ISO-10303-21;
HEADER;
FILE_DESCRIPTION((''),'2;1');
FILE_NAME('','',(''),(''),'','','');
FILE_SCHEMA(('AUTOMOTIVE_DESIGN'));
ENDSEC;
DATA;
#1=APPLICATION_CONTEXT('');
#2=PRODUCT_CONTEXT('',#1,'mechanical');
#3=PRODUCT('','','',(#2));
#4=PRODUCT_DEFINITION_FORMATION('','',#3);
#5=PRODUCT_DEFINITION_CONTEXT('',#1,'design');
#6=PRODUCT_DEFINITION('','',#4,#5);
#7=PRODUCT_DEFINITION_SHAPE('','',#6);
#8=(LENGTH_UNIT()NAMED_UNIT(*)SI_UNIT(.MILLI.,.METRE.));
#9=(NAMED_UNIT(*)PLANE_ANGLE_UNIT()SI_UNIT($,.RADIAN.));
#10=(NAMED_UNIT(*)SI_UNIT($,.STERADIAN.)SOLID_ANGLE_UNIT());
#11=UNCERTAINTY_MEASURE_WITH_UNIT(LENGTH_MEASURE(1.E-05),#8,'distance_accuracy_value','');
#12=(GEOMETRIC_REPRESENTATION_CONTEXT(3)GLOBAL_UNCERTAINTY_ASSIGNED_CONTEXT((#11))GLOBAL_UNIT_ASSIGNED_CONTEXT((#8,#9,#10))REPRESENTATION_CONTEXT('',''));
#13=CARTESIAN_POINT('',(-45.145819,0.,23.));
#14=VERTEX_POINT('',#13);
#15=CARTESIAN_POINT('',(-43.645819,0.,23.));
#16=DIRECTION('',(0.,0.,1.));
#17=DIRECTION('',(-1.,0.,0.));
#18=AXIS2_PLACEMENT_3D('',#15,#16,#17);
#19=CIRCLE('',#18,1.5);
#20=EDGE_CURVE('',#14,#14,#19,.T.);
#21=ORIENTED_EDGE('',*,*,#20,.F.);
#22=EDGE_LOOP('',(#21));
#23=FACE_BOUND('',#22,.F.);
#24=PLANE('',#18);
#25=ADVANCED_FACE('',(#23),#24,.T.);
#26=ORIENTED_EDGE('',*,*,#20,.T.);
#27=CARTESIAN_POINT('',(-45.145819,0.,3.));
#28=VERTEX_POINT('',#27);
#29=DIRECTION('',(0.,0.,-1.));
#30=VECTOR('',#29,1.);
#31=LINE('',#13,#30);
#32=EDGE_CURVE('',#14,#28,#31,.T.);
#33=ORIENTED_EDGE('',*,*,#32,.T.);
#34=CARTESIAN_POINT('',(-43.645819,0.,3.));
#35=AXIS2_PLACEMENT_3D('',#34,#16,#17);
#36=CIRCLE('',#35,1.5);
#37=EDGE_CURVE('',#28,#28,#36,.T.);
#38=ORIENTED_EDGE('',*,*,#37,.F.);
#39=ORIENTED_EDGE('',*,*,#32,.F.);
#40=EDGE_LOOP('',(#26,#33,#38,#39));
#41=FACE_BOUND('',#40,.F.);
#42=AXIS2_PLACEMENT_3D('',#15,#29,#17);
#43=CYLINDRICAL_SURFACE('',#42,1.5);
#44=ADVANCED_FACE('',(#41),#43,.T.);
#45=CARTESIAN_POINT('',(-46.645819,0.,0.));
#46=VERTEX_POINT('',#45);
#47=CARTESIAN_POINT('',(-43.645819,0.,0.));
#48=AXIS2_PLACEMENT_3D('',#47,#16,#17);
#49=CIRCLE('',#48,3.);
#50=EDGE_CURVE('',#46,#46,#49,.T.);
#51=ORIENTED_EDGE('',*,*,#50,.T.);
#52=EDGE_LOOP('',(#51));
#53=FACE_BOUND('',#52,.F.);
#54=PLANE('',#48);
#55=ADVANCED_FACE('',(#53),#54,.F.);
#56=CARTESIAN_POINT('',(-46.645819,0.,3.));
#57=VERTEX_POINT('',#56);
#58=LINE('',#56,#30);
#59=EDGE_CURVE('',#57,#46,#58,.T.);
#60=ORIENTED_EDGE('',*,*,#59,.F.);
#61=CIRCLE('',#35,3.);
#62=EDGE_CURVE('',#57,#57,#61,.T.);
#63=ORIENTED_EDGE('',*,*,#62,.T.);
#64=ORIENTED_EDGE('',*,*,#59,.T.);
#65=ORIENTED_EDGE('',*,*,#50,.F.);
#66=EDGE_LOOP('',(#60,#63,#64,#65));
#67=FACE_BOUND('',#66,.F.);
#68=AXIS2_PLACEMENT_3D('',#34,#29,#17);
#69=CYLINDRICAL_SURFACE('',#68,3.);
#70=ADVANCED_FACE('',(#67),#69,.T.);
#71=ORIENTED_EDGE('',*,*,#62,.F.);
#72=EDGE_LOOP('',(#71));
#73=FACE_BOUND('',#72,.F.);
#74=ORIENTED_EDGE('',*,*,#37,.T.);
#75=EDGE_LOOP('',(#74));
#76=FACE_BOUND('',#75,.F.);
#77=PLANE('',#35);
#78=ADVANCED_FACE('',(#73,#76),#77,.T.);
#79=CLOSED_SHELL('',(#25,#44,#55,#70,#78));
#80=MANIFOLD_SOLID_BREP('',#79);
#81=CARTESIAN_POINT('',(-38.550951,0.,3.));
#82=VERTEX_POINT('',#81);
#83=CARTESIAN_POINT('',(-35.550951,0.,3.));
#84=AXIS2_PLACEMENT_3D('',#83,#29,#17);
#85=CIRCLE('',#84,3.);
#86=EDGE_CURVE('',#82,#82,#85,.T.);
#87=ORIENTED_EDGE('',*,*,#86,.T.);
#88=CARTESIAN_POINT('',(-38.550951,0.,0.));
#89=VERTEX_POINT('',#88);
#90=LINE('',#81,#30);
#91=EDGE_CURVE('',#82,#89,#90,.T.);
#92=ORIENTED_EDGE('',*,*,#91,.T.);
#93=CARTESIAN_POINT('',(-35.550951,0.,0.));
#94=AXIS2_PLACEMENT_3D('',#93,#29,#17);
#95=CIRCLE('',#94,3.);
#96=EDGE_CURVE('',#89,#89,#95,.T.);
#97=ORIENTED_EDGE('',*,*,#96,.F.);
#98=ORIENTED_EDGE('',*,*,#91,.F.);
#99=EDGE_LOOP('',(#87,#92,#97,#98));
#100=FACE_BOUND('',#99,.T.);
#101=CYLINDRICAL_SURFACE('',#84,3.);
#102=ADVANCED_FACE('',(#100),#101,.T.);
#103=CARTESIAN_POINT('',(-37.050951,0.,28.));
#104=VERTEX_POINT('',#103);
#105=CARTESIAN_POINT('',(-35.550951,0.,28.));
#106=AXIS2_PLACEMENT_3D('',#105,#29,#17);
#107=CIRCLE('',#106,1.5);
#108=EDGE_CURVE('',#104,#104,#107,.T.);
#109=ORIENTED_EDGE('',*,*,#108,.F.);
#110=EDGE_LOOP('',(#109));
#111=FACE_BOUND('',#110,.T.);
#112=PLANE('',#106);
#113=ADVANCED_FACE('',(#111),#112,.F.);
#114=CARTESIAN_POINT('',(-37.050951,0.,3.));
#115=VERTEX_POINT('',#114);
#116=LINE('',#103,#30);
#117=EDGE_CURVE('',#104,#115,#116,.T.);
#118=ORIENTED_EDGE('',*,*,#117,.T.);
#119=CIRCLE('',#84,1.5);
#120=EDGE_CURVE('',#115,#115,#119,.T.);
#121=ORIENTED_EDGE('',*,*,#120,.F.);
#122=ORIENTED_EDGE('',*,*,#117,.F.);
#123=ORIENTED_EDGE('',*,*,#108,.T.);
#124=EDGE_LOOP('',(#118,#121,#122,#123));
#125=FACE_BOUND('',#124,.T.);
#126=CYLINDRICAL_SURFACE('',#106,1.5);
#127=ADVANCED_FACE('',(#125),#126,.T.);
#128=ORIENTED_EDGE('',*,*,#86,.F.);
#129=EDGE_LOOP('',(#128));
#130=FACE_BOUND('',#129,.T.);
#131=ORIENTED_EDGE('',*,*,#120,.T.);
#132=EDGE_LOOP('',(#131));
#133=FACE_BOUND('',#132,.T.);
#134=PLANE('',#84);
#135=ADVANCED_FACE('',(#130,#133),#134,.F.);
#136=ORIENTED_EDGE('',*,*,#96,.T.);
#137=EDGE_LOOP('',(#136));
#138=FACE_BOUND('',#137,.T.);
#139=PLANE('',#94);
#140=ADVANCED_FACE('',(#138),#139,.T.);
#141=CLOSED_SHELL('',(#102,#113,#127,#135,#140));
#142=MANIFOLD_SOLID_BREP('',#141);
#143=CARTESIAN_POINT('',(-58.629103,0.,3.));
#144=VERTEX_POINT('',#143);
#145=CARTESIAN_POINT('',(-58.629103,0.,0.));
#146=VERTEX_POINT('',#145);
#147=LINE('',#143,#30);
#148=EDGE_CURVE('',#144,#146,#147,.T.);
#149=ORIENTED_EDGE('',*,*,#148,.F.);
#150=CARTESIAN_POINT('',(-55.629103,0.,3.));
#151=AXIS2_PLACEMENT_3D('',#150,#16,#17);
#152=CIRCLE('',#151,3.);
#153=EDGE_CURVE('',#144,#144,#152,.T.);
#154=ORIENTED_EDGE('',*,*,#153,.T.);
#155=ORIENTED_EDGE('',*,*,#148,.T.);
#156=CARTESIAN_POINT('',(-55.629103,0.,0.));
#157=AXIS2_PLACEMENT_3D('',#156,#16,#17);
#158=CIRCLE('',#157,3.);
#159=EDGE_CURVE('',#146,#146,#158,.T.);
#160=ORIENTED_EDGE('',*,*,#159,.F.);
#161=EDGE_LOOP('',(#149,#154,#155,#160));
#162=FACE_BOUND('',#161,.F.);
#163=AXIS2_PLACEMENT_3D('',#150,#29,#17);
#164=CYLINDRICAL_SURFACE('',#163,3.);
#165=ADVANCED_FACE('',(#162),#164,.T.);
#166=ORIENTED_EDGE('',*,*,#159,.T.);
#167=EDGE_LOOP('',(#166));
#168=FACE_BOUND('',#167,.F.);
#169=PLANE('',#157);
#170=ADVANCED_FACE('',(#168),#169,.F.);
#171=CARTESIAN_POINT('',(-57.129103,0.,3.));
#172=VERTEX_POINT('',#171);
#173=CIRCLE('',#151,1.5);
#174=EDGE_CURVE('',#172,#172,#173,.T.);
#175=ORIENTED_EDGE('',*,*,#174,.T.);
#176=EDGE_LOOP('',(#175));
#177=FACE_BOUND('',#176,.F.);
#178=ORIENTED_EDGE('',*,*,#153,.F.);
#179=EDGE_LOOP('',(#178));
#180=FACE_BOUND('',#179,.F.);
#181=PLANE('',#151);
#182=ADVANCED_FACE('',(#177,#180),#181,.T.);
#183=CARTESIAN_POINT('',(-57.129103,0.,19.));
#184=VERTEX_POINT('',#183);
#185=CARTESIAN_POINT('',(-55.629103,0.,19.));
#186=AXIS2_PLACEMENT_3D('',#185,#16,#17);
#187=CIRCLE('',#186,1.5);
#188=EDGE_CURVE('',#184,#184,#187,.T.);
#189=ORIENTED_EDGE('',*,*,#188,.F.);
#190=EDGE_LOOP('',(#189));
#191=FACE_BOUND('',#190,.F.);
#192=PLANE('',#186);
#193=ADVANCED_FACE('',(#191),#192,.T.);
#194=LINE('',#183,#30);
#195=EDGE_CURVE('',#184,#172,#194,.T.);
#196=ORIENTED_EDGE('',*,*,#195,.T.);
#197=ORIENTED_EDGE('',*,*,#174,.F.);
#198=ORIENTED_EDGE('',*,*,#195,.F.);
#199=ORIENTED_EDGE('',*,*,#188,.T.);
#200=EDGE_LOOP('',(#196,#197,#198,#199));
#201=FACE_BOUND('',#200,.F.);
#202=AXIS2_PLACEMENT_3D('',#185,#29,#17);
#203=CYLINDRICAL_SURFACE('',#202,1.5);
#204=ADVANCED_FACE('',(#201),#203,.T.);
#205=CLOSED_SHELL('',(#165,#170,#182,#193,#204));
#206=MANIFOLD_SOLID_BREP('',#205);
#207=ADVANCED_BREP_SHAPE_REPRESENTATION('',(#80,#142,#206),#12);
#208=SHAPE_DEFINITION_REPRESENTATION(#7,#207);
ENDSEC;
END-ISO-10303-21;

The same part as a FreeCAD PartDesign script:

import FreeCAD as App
import Part
import Sketcher
from FreeCAD import Vector

doc = App.newDocument("Part")
params = doc.addObject("Spreadsheet::Sheet", "Params")
for row, (alias, value) in enumerate([
    ("sketch1_width", "3 mm"),
    ("sketch1_height", "23 mm"),
    ("revolution_angle", "360 deg"),
    ("sketch2_width", "3 mm"),
    ("sketch2_height", "28 mm"),
    ("revolution2_angle", "360 deg"),
    ("sketch3_width", "3 mm"),
    ("sketch3_height", "19 mm"),
    ("revolution3_angle", "360 deg"),
], start=1):
    params.set(f"A{row}", alias)
    params.set(f"B{row}", "=" + value)
    params.setAlias(f"B{row}", alias)

body = doc.addObject("PartDesign::Body", "Body")

# Sketch on XZ plane
sketch1 = doc.addObject("Sketcher::SketchObject", "Sketch")
body.addObject(sketch1)
sketch1.AttachmentSupport = (doc.XZ_Plane, [""])
sketch1.MapMode = "FlatFace"
sketch1.addGeometry(Part.LineSegment(Vector(-46.645819, 0, 0), Vector(-43.645819, 0, 0)), False)
sketch1.addGeometry(Part.LineSegment(Vector(-43.645819, 0, 0), Vector(-43.645819, 23, 0)), False)
sketch1.addGeometry(Part.LineSegment(Vector(-43.645819, 23, 0), Vector(-45.145819, 23, 0)), False)
sketch1.addGeometry(Part.LineSegment(Vector(-45.145819, 23, 0), Vector(-45.145819, 3, 0)), False)
sketch1.addGeometry(Part.LineSegment(Vector(-45.145819, 3, 0), Vector(-46.645819, 3, 0)), False)
sketch1.addGeometry(Part.LineSegment(Vector(-46.645819, 3, 0), Vector(-46.645819, 0, 0)), False)
sketch1.addGeometry(Part.LineSegment(Vector(-43.645819, 0, 0), Vector(-43.645819, 23, 0)), True)  # axis
sketch1.addConstraint(Sketcher.Constraint("Coincident", 0, 2, 1, 1))
sketch1.addConstraint(Sketcher.Constraint("Coincident", 1, 2, 2, 1))
sketch1.addConstraint(Sketcher.Constraint("Coincident", 2, 2, 3, 1))
sketch1.addConstraint(Sketcher.Constraint("Coincident", 3, 2, 4, 1))
sketch1.addConstraint(Sketcher.Constraint("Coincident", 4, 2, 5, 1))
sketch1.addConstraint(Sketcher.Constraint("Coincident", 5, 2, 0, 1))
sketch1.addConstraint(Sketcher.Constraint("Horizontal", 0))
sketch1.addConstraint(Sketcher.Constraint("Vertical", 1))
sketch1.addConstraint(Sketcher.Constraint("Horizontal", 2))
sketch1.addConstraint(Sketcher.Constraint("Vertical", 3))
sketch1.addConstraint(Sketcher.Constraint("Horizontal", 4))
sketch1.addConstraint(Sketcher.Constraint("Vertical", 5))
sketch1.addConstraint(Sketcher.Constraint("Vertical", 6))
sketch1.addConstraint(Sketcher.Constraint("Coincident", 6, 1, 0, 2))
sketch1.addConstraint(Sketcher.Constraint("PointOnObject", 0, 2, -1))
sketch1.addConstraint(Sketcher.Constraint("Horizontal", 2, 2, 6, 2))
sketch1.addConstraint(Sketcher.Constraint("Equal", 2, 4))
sketch1.addConstraint(Sketcher.Constraint("Equal", 0, 5))
sketch1.addConstraint(Sketcher.Constraint("DistanceX", 0, 1, 0, 2, 3.0))
sketch1.addConstraint(Sketcher.Constraint("DistanceY", 1, 1, 1, 2, 23.0))
sketch1.addConstraint(Sketcher.Constraint("DistanceX", 0, 2, -1, 1, 43.645819))
sketch1.setExpression("Constraints[18]", "Params.sketch1_width")
sketch1.setExpression("Constraints[19]", "Params.sketch1_height")
revolution = doc.addObject("PartDesign::Revolution", "Revolution")
body.addObject(revolution)
revolution.Profile = sketch1
revolution.ReferenceAxis = (sketch1, ["Axis0"])
revolution.setExpression("Angle", "Params.revolution_angle")
body2 = doc.addObject("PartDesign::Body", "Body001")

# Sketch on XZ plane
sketch2 = doc.addObject("Sketcher::SketchObject", "Sketch001")
body2.addObject(sketch2)
sketch2.AttachmentSupport = (doc.getObject("XZ_Plane001"), [""])
sketch2.MapMode = "FlatFace"
sketch2.addGeometry(Part.LineSegment(Vector(-38.550951, 3, 0), Vector(-38.550951, 0, 0)), False)
sketch2.addGeometry(Part.LineSegment(Vector(-38.550951, 0, 0), Vector(-35.550951, 0, 0)), False)
sketch2.addGeometry(Part.LineSegment(Vector(-35.550951, 0, 0), Vector(-35.550951, 28, 0)), False)
sketch2.addGeometry(Part.LineSegment(Vector(-35.550951, 28, 0), Vector(-37.050951, 28, 0)), False)
sketch2.addGeometry(Part.LineSegment(Vector(-37.050951, 28, 0), Vector(-37.050951, 3, 0)), False)
sketch2.addGeometry(Part.LineSegment(Vector(-37.050951, 3, 0), Vector(-38.550951, 3, 0)), False)
sketch2.addGeometry(Part.LineSegment(Vector(-35.550951, 28, 0), Vector(-35.550951, 0, 0)), True)  # axis
sketch2.addConstraint(Sketcher.Constraint("Coincident", 0, 2, 1, 1))
sketch2.addConstraint(Sketcher.Constraint("Coincident", 1, 2, 2, 1))
sketch2.addConstraint(Sketcher.Constraint("Coincident", 2, 2, 3, 1))
sketch2.addConstraint(Sketcher.Constraint("Coincident", 3, 2, 4, 1))
sketch2.addConstraint(Sketcher.Constraint("Coincident", 4, 2, 5, 1))
sketch2.addConstraint(Sketcher.Constraint("Coincident", 5, 2, 0, 1))
sketch2.addConstraint(Sketcher.Constraint("Vertical", 0))
sketch2.addConstraint(Sketcher.Constraint("Horizontal", 1))
sketch2.addConstraint(Sketcher.Constraint("Vertical", 2))
sketch2.addConstraint(Sketcher.Constraint("Horizontal", 3))
sketch2.addConstraint(Sketcher.Constraint("Vertical", 4))
sketch2.addConstraint(Sketcher.Constraint("Horizontal", 5))
sketch2.addConstraint(Sketcher.Constraint("Vertical", 6))
sketch2.addConstraint(Sketcher.Constraint("Coincident", 6, 1, 2, 2))
sketch2.addConstraint(Sketcher.Constraint("PointOnObject", 0, 2, -1))
sketch2.addConstraint(Sketcher.Constraint("PointOnObject", 6, 2, -1))
sketch2.addConstraint(Sketcher.Constraint("Equal", 3, 5))
sketch2.addConstraint(Sketcher.Constraint("Equal", 1, 0))
sketch2.addConstraint(Sketcher.Constraint("DistanceX", 1, 1, 1, 2, 3.0))
sketch2.addConstraint(Sketcher.Constraint("DistanceY", 2, 1, 2, 2, 28.0))
sketch2.addConstraint(Sketcher.Constraint("DistanceX", 0, 2, -1, 1, 38.550951))
sketch2.setExpression("Constraints[18]", "Params.sketch2_width")
sketch2.setExpression("Constraints[19]", "Params.sketch2_height")
revolution2 = doc.addObject("PartDesign::Revolution", "Revolution001")
body2.addObject(revolution2)
revolution2.Profile = sketch2
revolution2.ReferenceAxis = (sketch2, ["Axis0"])
revolution2.setExpression("Angle", "Params.revolution2_angle")
body3 = doc.addObject("PartDesign::Body", "Body002")

# Sketch on XZ plane
sketch3 = doc.addObject("Sketcher::SketchObject", "Sketch002")
body3.addObject(sketch3)
sketch3.AttachmentSupport = (doc.getObject("XZ_Plane002"), [""])
sketch3.MapMode = "FlatFace"
sketch3.addGeometry(Part.LineSegment(Vector(-58.629103, 3, 0), Vector(-58.629103, 0, 0)), False)
sketch3.addGeometry(Part.LineSegment(Vector(-58.629103, 0, 0), Vector(-55.629103, 0, 0)), False)
sketch3.addGeometry(Part.LineSegment(Vector(-55.629103, 0, 0), Vector(-55.629103, 19, 0)), False)
sketch3.addGeometry(Part.LineSegment(Vector(-55.629103, 19, 0), Vector(-57.129103, 19, 0)), False)
sketch3.addGeometry(Part.LineSegment(Vector(-57.129103, 19, 0), Vector(-57.129103, 3, 0)), False)
sketch3.addGeometry(Part.LineSegment(Vector(-57.129103, 3, 0), Vector(-58.629103, 3, 0)), False)
sketch3.addGeometry(Part.LineSegment(Vector(-55.629103, 0, 0), Vector(-55.629103, 19, 0)), True)  # axis
sketch3.addConstraint(Sketcher.Constraint("Coincident", 0, 2, 1, 1))
sketch3.addConstraint(Sketcher.Constraint("Coincident", 1, 2, 2, 1))
sketch3.addConstraint(Sketcher.Constraint("Coincident", 2, 2, 3, 1))
sketch3.addConstraint(Sketcher.Constraint("Coincident", 3, 2, 4, 1))
sketch3.addConstraint(Sketcher.Constraint("Coincident", 4, 2, 5, 1))
sketch3.addConstraint(Sketcher.Constraint("Coincident", 5, 2, 0, 1))
sketch3.addConstraint(Sketcher.Constraint("Vertical", 0))
sketch3.addConstraint(Sketcher.Constraint("Horizontal", 1))
sketch3.addConstraint(Sketcher.Constraint("Vertical", 2))
sketch3.addConstraint(Sketcher.Constraint("Horizontal", 3))
sketch3.addConstraint(Sketcher.Constraint("Vertical", 4))
sketch3.addConstraint(Sketcher.Constraint("Horizontal", 5))
sketch3.addConstraint(Sketcher.Constraint("Vertical", 6))
sketch3.addConstraint(Sketcher.Constraint("Coincident", 6, 1, 1, 2))
sketch3.addConstraint(Sketcher.Constraint("PointOnObject", 0, 2, -1))
sketch3.addConstraint(Sketcher.Constraint("Horizontal", 3, 2, 6, 2))
sketch3.addConstraint(Sketcher.Constraint("Equal", 3, 5))
sketch3.addConstraint(Sketcher.Constraint("Equal", 1, 0))
sketch3.addConstraint(Sketcher.Constraint("DistanceX", 1, 1, 1, 2, 3.0))
sketch3.addConstraint(Sketcher.Constraint("DistanceY", 2, 1, 2, 2, 19.0))
sketch3.addConstraint(Sketcher.Constraint("DistanceX", 0, 2, -1, 1, 58.629103))
sketch3.setExpression("Constraints[18]", "Params.sketch3_width")
sketch3.setExpression("Constraints[19]", "Params.sketch3_height")
revolution3 = doc.addObject("PartDesign::Revolution", "Revolution002")
body3.addObject(revolution3)
revolution3.Profile = sketch3
revolution3.ReferenceAxis = (sketch3, ["Axis0"])
revolution3.setExpression("Angle", "Params.revolution3_angle")

doc.recompute()
